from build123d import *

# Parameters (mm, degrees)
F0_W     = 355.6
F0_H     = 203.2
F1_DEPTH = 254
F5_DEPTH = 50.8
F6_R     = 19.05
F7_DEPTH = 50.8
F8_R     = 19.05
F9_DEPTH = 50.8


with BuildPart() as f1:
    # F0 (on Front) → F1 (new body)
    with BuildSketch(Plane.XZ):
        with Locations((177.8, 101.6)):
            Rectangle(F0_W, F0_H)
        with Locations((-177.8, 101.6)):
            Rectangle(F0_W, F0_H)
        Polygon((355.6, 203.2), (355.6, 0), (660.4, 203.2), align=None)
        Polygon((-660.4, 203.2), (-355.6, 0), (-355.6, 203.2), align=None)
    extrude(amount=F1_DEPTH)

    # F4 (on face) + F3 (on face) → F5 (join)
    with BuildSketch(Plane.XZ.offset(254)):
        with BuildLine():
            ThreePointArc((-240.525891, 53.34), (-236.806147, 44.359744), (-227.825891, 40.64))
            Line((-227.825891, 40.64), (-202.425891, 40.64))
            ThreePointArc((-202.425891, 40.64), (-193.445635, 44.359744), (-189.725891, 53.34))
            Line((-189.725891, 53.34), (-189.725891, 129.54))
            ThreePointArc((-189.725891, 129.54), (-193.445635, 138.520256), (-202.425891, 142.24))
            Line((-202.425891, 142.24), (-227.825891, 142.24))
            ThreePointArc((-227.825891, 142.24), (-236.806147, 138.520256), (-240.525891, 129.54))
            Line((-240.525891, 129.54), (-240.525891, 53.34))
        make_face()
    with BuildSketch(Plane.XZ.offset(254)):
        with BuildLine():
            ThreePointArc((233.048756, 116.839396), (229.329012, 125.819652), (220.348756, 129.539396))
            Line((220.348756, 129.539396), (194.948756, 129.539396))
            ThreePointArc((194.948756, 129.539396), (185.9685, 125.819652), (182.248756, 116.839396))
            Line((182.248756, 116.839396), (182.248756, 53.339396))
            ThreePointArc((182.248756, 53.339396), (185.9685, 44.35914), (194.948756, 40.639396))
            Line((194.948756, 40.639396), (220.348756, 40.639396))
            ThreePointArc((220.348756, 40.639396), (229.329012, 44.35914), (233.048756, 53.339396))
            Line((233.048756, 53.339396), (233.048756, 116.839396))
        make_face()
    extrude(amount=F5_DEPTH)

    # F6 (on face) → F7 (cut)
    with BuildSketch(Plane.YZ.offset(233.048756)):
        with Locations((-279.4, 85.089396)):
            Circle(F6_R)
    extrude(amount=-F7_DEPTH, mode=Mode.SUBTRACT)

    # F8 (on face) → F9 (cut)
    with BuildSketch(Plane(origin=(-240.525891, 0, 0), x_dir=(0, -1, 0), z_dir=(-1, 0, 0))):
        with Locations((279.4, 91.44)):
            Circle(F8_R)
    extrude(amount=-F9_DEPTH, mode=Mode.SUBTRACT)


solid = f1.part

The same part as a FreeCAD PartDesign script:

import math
import FreeCAD as App
import Part
import Sketcher
from FreeCAD import Vector
Q = App.Units.Quantity

doc = App.newDocument("Part")
body = doc.addObject("PartDesign::Body", "Body")

sketch1 = body.newObject("Sketcher::SketchObject", "Sketch")
sketch1.AttachmentSupport = (doc.getObject("XZ_Plane"), [""])
sketch1.MapMode = "FlatFace"
sketch1.addGeometry(Part.LineSegment(Vector(-355.6, 0, 0), Vector(355.6, 0, 0)), False)
sketch1.addGeometry(Part.LineSegment(Vector(355.6, 0, 0), Vector(660.4, 203.2, 0)), False)
sketch1.addGeometry(Part.LineSegment(Vector(660.4, 203.2, 0), Vector(-660.4, 203.2, 0)), False)
sketch1.addGeometry(Part.LineSegment(Vector(-660.4, 203.2, 0), Vector(-355.6, 0, 0)), False)
sketch1.addConstraint(Sketcher.Constraint("Coincident", 0, 2, 1, 1))
sketch1.addConstraint(Sketcher.Constraint("Coincident", 1, 2, 2, 1))
sketch1.addConstraint(Sketcher.Constraint("Coincident", 2, 2, 3, 1))
sketch1.addConstraint(Sketcher.Constraint("Coincident", 3, 2, 0, 1))
sketch1.addConstraint(Sketcher.Constraint("Horizontal", 0))
sketch1.addConstraint(Sketcher.Constraint("Horizontal", 2))
sketch1.addConstraint(Sketcher.Constraint("Symmetric", 0, 2, 3, 2, -1, 1))
sketch1.addConstraint(Sketcher.Constraint("Equal", 1, 3))
sketch1.addConstraint(Sketcher.Constraint("DistanceX", 0, 1, 0, 2, Q("28 in")))
sketch1.addConstraint(Sketcher.Constraint("DistanceX", 2, 2, 2, 1, Q("52 in")))
sketch1.addConstraint(Sketcher.Constraint("DistanceY", -1, 1, 1, 2, Q("8 in")))
pad1 = body.newObject("PartDesign::Pad", "Pad")
pad1.Profile = sketch1
pad1.Length = Q("10 in")

sketch2 = body.newObject("Sketcher::SketchObject", "Sketch001")
sketch2.AttachmentSupport = (doc.getObject("XZ_Plane"), [""])
sketch2.MapMode = "FlatFace"
sketch2.AttachmentOffset = App.Placement(Vector(0, 0, 10 * 25.4), App.Rotation())
sketch2.addGeometry(Part.ArcOfCircle(Part.Circle(Vector(-227.825891, 53.34, 0), Vector(0, 0, 1), 12.7), math.radians(-179.999998), math.radians(-90.000002)), False)
sketch2.addGeometry(Part.LineSegment(Vector(-227.825891, 40.64, 0), Vector(-202.425891, 40.64, 0)), False)
sketch2.addGeometry(Part.ArcOfCircle(Part.Circle(Vector(-202.425891, 53.34, 0), Vector(0, 0, 1), 12.7), math.radians(-89.999998), math.radians(-0.000002)), False)
sketch2.addGeometry(Part.LineSegment(Vector(-189.725891, 53.34, 0), Vector(-189.725891, 129.54, 0)), False)
sketch2.addGeometry(Part.ArcOfCircle(Part.Circle(Vector(-202.425891, 129.54, 0), Vector(0, 0, 1), 12.7), math.radians(0.000002), math.radians(89.999998)), False)
sketch2.addGeometry(Part.LineSegment(Vector(-202.425891, 142.24, 0), Vector(-227.825891, 142.24, 0)), False)
sketch2.addGeometry(Part.ArcOfCircle(Part.Circle(Vector(-227.825891, 129.54, 0), Vector(0, 0, 1), 12.7), math.radians(90.000002), math.radians(179.999998)), False)
sketch2.addGeometry(Part.LineSegment(Vector(-240.525891, 129.54, 0), Vector(-240.525891, 53.34, 0)), False)
sketch2.addGeometry(Part.ArcOfCircle(Part.Circle(Vector(220.348756, 116.839396, 0), Vector(0, 0, 1), 12.7), math.radians(0.000002), math.radians(89.999998)), False)
sketch2.addGeometry(Part.LineSegment(Vector(220.348756, 129.539396, 0), Vector(194.948756, 129.539396, 0)), False)
sketch2.addGeometry(Part.ArcOfCircle(Part.Circle(Vector(194.948756, 116.839396, 0), Vector(0, 0, 1), 12.7), math.radians(90.000002), math.radians(179.999998)), False)
sketch2.addGeometry(Part.LineSegment(Vector(182.248756, 116.839396, 0), Vector(182.248756, 53.339396, 0)), False)
sketch2.addGeometry(Part.ArcOfCircle(Part.Circle(Vector(194.948756, 53.339396, 0), Vector(0, 0, 1), 12.7), math.radians(-179.999998), math.radians(-90.000002)), False)
sketch2.addGeometry(Part.LineSegment(Vector(194.948756, 40.639396, 0), Vector(220.348756, 40.639396, 0)), False)
sketch2.addGeometry(Part.ArcOfCircle(Part.Circle(Vector(220.348756, 53.339396, 0), Vector(0, 0, 1), 12.7), math.radians(-89.999998), math.radians(-0.000002)), False)
sketch2.addGeometry(Part.LineSegment(Vector(233.048756, 53.339396, 0), Vector(233.048756, 116.839396, 0)), False)
sketch2.addConstraint(Sketcher.Constraint("Tangent", 0, 2, 1, 1))
sketch2.addConstraint(Sketcher.Constraint("Tangent", 1, 2, 2, 1))
sketch2.addConstraint(Sketcher.Constraint("Tangent", 2, 2, 3, 1))
sketch2.addConstraint(Sketcher.Constraint("Tangent", 3, 2, 4, 1))
sketch2.addConstraint(Sketcher.Constraint("Tangent", 4, 2, 5, 1))
sketch2.addConstraint(Sketcher.Constraint("Tangent", 5, 2, 6, 1))
sketch2.addConstraint(Sketcher.Constraint("Tangent", 6, 2, 7, 1))
sketch2.addConstraint(Sketcher.Constraint("Tangent", 7, 2, 0, 1))
sketch2.addConstraint(Sketcher.Constraint("Tangent", 8, 2, 9, 1))
sketch2.addConstraint(Sketcher.Constraint("Tangent", 9, 2, 10, 1))
sketch2.addConstraint(Sketcher.Constraint("Tangent", 10, 2, 11, 1))
sketch2.addConstraint(Sketcher.Constraint("Tangent", 11, 2, 12, 1))
sketch2.addConstraint(Sketcher.Constraint("Tangent", 12, 2, 13, 1))
sketch2.addConstraint(Sketcher.Constraint("Tangent", 13, 2, 14, 1))
sketch2.addConstraint(Sketcher.Constraint("Tangent", 14, 2, 15, 1))
sketch2.addConstraint(Sketcher.Constraint("Tangent", 15, 2, 8, 1))
sketch2.addConstraint(Sketcher.Constraint("Horizontal", 1))
sketch2.addConstraint(Sketcher.Constraint("Vertical", 3))
sketch2.addConstraint(Sketcher.Constraint("Horizontal", 5))
sketch2.addConstraint(Sketcher.Constraint("Vertical", 7))
sketch2.addConstraint(Sketcher.Constraint("Horizontal", 9))
sketch2.addConstraint(Sketcher.Constraint("Vertical", 11))
sketch2.addConstraint(Sketcher.Constraint("Horizontal", 13))
sketch2.addConstraint(Sketcher.Constraint("Vertical", 15))
sketch2.addConstraint(Sketcher.Constraint("Equal", 0, 2))
sketch2.addConstraint(Sketcher.Constraint("Equal", 2, 4))
sketch2.addConstraint(Sketcher.Constraint("Equal", 4, 6))
sketch2.addConstraint(Sketcher.Constraint("Equal", 6, 8))
sketch2.addConstraint(Sketcher.Constraint("Equal", 8, 10))
sketch2.addConstraint(Sketcher.Constraint("Equal", 10, 12))
sketch2.addConstraint(Sketcher.Constraint("Equal", 12, 14))
sketch2.addConstraint(Sketcher.Constraint("Equal", 5, 9))
sketch2.addConstraint(Sketcher.Constraint("Radius", 0, Q("0.5 in")))
sketch2.addConstraint(Sketcher.Constraint("DistanceX", 1, 1, 1, 2, Q("1 in")))
sketch2.addConstraint(Sketcher.Constraint("DistanceY", 3, 1, 3, 2, Q("3 in")))
sketch2.addConstraint(Sketcher.Constraint("DistanceY", 11, 2, 11, 1, Q("2.5 in")))
sketch2.addConstraint(Sketcher.Constraint("DistanceY", -1, 1, 0, 3, Q("2.1 in")))
sketch2.addConstraint(Sketcher.Constraint("DistanceX", 0, 3, -1, 1, Q("227.825891 mm")))
sketch2.addConstraint(Sketcher.Constraint("DistanceX", -1, 1, 8, 3, Q("220.348756 mm")))
sketch2.addConstraint(Sketcher.Constraint("DistanceY", -1, 1, 8, 3, Q("116.839396 mm")))
pad2 = body.newObject("PartDesign::Pad", "Pad001")
pad2.Profile = sketch2
pad2.Length = Q("2 in")

sketch3 = body.newObject("Sketcher::SketchObject", "Sketch002")
sketch3.AttachmentSupport = (doc.getObject("YZ_Plane"), [""])
sketch3.MapMode = "FlatFace"
sketch3.AttachmentOffset = App.Placement(Vector(0, 0, 233.048756), App.Rotation())
sketch3.addGeometry(Part.Circle(Vector(-279.4, 85.089396, 0), Vector(0, 0, 1), 19.05), False)
sketch3.addConstraint(Sketcher.Constraint("Diameter", 0, Q("1.5 in")))
sketch3.addConstraint(Sketcher.Constraint("DistanceX", 0, 3, -1, 1, Q("11 in")))
sketch3.addConstraint(Sketcher.Constraint("DistanceY", -1, 1, 0, 3, Q("85.089396 mm")))
pocket1 = body.newObject("PartDesign::Pocket", "Pocket")
pocket1.Profile = sketch3
pocket1.Length = Q("2 in")

sketch4 = body.newObject("Sketcher::SketchObject", "Sketch003")
sketch4.AttachmentSupport = (doc.getObject("YZ_Plane"), [""])
sketch4.MapMode = "FlatFace"
sketch4.AttachmentOffset = App.Placement(Vector(0, 0, -240.525891), App.Rotation())
sketch4.addGeometry(Part.Circle(Vector(-279.4, 91.44, 0), Vector(0, 0, 1), 19.05), False)
sketch4.addConstraint(Sketcher.Constraint("Diameter", 0, Q("1.5 in")))
sketch4.addConstraint(Sketcher.Constraint("DistanceX", 0, 3, -1, 1, Q("11 in")))
sketch4.addConstraint(Sketcher.Constraint("DistanceY", -1, 1, 0, 3, Q("3.6 in")))
pocket2 = body.newObject("PartDesign::Pocket", "Pocket001")
pocket2.Profile = sketch4
pocket2.Length = Q("2 in")
pocket2.Reversed = True

doc.recompute()
